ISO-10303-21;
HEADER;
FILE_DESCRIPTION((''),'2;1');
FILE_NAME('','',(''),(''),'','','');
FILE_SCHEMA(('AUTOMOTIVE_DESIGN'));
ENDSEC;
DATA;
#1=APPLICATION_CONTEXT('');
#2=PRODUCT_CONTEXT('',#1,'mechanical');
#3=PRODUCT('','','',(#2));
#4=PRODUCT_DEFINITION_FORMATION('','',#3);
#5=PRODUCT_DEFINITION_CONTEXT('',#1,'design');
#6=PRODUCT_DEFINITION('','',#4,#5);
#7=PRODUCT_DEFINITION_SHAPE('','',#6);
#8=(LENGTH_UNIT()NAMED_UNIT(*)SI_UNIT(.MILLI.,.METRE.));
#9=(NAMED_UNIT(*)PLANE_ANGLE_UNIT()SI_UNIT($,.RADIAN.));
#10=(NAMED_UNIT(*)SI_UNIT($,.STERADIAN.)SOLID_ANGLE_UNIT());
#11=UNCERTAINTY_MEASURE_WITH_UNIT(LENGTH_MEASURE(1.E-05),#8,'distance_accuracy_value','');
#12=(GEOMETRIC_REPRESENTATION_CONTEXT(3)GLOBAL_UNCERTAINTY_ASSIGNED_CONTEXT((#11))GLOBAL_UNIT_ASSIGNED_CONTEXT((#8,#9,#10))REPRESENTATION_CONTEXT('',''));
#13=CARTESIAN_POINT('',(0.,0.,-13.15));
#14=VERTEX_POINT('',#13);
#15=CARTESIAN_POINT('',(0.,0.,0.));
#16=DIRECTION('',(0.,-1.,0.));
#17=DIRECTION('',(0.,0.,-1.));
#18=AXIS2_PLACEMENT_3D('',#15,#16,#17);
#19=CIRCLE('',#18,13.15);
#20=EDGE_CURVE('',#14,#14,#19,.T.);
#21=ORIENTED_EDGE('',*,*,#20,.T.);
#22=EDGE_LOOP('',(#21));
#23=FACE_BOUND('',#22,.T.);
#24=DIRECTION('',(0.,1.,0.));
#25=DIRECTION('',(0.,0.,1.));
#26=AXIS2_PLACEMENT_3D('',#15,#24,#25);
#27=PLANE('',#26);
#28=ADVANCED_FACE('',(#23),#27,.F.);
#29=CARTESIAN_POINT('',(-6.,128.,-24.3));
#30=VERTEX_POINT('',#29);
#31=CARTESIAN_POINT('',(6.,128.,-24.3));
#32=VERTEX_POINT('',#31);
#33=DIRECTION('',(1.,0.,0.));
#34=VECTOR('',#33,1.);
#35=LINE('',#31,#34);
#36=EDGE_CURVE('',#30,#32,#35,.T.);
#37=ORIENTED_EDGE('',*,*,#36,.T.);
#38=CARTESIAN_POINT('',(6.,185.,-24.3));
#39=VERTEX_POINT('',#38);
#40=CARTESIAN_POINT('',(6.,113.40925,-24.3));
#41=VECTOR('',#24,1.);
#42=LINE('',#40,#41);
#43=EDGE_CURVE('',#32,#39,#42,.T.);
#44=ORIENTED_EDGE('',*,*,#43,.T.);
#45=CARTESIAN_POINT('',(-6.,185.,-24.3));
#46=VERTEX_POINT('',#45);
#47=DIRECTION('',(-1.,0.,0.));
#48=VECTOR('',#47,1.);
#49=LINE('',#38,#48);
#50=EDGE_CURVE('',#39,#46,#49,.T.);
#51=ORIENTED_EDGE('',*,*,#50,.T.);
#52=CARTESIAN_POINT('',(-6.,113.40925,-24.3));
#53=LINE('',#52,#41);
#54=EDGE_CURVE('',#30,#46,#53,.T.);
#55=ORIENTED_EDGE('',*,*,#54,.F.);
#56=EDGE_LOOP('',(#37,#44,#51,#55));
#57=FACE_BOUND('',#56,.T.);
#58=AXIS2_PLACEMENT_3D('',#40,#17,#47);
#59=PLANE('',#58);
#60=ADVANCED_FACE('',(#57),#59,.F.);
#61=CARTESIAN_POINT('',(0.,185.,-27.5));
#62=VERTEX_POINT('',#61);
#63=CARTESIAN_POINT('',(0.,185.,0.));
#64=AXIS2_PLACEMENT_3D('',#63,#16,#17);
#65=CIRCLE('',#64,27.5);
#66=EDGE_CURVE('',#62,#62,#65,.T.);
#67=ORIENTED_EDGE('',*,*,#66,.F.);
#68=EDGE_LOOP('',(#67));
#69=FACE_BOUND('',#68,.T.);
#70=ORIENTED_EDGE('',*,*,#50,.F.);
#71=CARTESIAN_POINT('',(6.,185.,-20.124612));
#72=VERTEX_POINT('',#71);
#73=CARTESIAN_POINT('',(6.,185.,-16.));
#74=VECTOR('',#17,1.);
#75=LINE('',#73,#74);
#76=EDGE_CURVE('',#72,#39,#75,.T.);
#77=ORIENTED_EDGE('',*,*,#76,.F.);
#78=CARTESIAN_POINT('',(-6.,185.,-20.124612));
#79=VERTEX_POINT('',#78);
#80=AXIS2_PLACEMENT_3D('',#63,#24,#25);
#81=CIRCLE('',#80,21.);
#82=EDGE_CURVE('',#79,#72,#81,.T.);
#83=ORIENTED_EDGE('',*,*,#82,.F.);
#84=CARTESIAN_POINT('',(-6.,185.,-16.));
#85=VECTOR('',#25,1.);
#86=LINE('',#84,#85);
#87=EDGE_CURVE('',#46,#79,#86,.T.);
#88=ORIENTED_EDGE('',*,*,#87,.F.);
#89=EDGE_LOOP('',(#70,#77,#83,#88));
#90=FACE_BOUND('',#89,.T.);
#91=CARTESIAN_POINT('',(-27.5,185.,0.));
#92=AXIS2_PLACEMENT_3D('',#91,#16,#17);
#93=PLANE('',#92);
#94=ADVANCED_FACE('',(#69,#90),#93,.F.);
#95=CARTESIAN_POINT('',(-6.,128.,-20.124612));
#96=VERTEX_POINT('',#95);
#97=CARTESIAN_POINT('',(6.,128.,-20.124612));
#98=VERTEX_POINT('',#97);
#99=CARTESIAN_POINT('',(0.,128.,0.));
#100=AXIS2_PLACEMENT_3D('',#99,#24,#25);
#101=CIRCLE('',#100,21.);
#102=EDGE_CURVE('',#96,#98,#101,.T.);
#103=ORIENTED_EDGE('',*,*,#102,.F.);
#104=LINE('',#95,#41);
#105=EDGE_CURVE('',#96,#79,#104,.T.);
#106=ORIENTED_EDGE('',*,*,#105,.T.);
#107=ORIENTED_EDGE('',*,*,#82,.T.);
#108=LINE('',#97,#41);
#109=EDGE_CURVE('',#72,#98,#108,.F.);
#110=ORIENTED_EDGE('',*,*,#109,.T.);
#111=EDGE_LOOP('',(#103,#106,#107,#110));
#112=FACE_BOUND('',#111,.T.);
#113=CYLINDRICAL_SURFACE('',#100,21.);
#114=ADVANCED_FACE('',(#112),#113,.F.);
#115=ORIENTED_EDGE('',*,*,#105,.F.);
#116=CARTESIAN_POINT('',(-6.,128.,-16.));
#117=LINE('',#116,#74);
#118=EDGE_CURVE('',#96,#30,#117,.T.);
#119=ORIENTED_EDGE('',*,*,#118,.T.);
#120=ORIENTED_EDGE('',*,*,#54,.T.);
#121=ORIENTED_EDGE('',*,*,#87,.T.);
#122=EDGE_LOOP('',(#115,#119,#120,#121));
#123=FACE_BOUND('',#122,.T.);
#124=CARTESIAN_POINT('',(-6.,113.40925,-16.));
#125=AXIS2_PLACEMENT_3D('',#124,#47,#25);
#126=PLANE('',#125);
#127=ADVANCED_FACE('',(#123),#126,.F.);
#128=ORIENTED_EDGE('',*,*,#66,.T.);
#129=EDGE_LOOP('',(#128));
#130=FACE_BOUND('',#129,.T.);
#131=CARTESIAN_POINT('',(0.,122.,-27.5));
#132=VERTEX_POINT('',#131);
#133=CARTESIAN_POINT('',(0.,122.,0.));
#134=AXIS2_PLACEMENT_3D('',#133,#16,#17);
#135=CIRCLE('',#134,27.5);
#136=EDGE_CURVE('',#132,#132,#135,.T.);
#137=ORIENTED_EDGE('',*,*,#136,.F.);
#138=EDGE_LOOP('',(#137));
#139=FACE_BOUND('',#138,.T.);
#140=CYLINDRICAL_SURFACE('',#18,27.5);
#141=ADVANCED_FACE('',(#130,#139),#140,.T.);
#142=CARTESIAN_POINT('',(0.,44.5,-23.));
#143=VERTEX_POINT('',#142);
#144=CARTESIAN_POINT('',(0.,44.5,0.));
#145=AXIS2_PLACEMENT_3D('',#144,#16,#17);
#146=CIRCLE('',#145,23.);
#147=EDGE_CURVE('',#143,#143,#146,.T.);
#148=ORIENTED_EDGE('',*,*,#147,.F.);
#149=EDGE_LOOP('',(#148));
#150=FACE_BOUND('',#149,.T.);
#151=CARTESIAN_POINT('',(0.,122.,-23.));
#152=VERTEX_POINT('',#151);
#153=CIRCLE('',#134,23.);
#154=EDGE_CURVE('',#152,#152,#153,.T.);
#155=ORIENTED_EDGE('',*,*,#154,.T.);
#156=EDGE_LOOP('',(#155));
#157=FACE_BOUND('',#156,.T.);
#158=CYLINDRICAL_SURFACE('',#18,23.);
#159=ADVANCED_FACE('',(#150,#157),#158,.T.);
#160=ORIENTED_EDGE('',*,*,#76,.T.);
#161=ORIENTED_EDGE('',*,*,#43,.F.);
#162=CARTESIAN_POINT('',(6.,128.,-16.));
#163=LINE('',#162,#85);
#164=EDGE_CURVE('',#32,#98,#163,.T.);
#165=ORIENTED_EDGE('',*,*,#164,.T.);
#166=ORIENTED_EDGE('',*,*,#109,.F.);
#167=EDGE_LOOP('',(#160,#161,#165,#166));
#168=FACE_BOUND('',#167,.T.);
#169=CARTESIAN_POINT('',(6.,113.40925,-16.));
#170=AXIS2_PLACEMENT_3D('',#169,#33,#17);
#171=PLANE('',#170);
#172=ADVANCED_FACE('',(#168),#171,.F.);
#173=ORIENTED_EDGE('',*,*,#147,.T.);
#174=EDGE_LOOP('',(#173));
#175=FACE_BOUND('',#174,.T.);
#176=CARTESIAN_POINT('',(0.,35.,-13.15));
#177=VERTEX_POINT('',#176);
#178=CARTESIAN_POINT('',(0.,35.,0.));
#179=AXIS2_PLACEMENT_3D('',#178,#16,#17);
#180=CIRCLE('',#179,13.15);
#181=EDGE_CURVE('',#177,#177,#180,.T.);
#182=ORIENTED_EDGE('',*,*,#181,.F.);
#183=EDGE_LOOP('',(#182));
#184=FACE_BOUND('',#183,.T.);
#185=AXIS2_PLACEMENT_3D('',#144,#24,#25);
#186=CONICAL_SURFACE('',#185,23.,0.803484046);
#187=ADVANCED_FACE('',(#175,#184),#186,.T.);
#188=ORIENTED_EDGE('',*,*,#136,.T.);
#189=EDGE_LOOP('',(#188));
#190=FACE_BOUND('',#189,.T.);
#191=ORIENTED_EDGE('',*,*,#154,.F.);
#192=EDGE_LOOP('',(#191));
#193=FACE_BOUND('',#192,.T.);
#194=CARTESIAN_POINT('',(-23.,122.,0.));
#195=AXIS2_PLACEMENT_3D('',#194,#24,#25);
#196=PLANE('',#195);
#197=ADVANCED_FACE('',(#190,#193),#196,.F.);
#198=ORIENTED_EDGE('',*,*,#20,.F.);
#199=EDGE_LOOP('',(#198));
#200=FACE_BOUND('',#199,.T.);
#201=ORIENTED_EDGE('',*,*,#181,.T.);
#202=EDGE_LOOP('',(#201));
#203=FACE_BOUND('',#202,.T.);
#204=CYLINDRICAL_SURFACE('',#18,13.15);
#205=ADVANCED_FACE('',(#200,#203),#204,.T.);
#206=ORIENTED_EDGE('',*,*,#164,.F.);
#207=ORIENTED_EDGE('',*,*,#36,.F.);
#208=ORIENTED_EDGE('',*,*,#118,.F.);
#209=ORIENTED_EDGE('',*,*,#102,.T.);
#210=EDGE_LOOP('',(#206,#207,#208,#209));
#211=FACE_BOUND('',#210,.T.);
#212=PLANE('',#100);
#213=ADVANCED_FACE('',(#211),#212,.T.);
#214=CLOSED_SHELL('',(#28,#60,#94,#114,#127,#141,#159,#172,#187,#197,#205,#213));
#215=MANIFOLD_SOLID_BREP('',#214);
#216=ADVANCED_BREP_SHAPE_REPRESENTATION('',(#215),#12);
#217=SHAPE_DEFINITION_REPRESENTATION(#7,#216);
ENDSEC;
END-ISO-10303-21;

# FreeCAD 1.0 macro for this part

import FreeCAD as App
import Part
import Sketcher

V = App.Vector


def add_polygon(sketch, points):
    """Adds a closed chain of lines whose ends are joined by coincident constraints."""
    first, n = sketch.GeometryCount, len(points)
    for a, b in zip(points, points[1:] + points[:1]):
        sketch.addGeometry(Part.LineSegment(App.Vector(*a, 0), App.Vector(*b, 0)), False)
    for i in range(n):
        sketch.addConstraint(Sketcher.Constraint("Coincident", first + i, 2, first + (i + 1) % n, 1))

doc = App.newDocument("Part")
body = doc.addObject("PartDesign::Body", "Body")

# Sketch on XY plane
sketch1 = body.newObject("Sketcher::SketchObject", "Sketch")
sketch1.AttachmentSupport = (doc.getObject("XY_Plane"), [""])
sketch1.MapMode = "FlatFace"
add_polygon(sketch1, [(-13.2, 0), (0, 0), (0, 145), (-11, 145), (-11, 185), (-27.5, 185), (-27.5, 122), (-23, 122), (-23, 44.5), (-13.2, 35)])  # lines 0-9
sketch1.addConstraint([
    Sketcher.Constraint("Horizontal", 0),
    Sketcher.Constraint("Vertical", 1),
    Sketcher.Constraint("Horizontal", 2),
    Sketcher.Constraint("Vertical", 3),
    Sketcher.Constraint("Horizontal", 4),
    Sketcher.Constraint("Vertical", 5),
    Sketcher.Constraint("Horizontal", 6),
    Sketcher.Constraint("Vertical", 7),
    Sketcher.Constraint("Vertical", 9),
    Sketcher.Constraint("Coincident", 0, 2, -1, 1),
    Sketcher.Constraint("DistanceX", 2, 2, 2, 1, 11.0),
    Sketcher.Constraint("DistanceY", 1, 1, 1, 2, 145.0),
    Sketcher.Constraint("DistanceY", 3, 1, 3, 2, 40.0),
    Sketcher.Constraint("DistanceY", 5, 2, 5, 1, 63.0),
    Sketcher.Constraint("DistanceY", 9, 2, 9, 1, 35.0),
    Sketcher.Constraint("DistanceX", 4, 2, 4, 1, 16.5),
    Sketcher.Constraint("DistanceX", 6, 1, 6, 2, 4.5),
    Sketcher.Constraint("DistanceY", 7, 2, 7, 1, 77.5),
    Sketcher.Constraint("DistanceX", 0, 1, 0, 2, 13.15),
])
revolution = body.newObject("PartDesign::Revolution", "Revolution")
revolution.Profile = sketch1
revolution.ReferenceAxis = (sketch1, ["V_Axis"])
revolution.Angle = 360

# Sketch on XZ plane
sketch2 = body.newObject("Sketcher::SketchObject", "Sketch001")
sketch2.AttachmentSupport = (doc.getObject("XZ_Plane"), [""])
sketch2.MapMode = "FlatFace"
sketch2.AttachmentOffset = App.Placement(V(0, 0, -185), App.Rotation())
sketch2.addGeometry(Part.Circle(V(0, 0, 0), V(0, 0, 1), 21), False)
sketch2.addConstraint([
    Sketcher.Constraint("Coincident", 0, 3, -1, 1),
    Sketcher.Constraint("Diameter", 0, 42.0),
])
pocket1 = body.newObject("PartDesign::Pocket", "Pocket")
pocket1.Profile = sketch2
pocket1.Length = 57
pocket1.Reversed = True

# Sketch on XZ plane
sketch3 = body.newObject("Sketcher::SketchObject", "Sketch002")
sketch3.AttachmentSupport = (doc.getObject("XZ_Plane"), [""])
sketch3.MapMode = "FlatFace"
sketch3.AttachmentOffset = App.Placement(V(0, 0, -185), App.Rotation())
add_polygon(sketch3, [(-6, -24), (-6, -16), (6, -16), (6, -24)])  # lines 0-3
sketch3.addConstraint([
    Sketcher.Constraint("Vertical", 0),
    Sketcher.Constraint("Horizontal", 1),
    Sketcher.Constraint("Vertical", 2),
    Sketcher.Constraint("Horizontal", 3),
    Sketcher.Constraint("DistanceX", 1, 1, 1, 2, 12.0),
    Sketcher.Constraint("DistanceY", 0, 1, 0, 2, 8.3),
    Sketcher.Constraint("DistanceX", 0, 2, -1, 1, 6.0),
    Sketcher.Constraint("DistanceY", 0, 2, -1, 1, 16.0),
])
pocket2 = body.newObject("PartDesign::Pocket", "Pocket001")
pocket2.Profile = sketch3
pocket2.Length = 57
pocket2.Reversed = True

doc.recompute()
